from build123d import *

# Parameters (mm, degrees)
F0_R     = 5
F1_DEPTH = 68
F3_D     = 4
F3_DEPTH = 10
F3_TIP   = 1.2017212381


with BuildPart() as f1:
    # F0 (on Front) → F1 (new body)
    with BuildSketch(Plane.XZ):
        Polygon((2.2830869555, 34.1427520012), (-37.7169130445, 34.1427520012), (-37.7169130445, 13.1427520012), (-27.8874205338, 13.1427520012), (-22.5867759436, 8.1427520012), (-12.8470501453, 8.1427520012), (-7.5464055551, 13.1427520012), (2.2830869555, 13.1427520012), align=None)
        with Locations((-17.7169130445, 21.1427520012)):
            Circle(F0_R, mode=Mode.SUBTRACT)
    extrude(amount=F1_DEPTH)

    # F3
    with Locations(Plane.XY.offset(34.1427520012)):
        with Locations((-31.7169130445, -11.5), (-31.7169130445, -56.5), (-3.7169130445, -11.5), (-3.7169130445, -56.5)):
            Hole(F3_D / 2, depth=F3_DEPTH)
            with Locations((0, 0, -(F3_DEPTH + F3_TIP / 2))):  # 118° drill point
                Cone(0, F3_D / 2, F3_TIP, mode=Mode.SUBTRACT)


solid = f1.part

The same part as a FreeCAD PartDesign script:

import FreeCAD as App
import Part
import Sketcher
from FreeCAD import Vector
Q = App.Units.Quantity

doc = App.newDocument("Part")
body = doc.addObject("PartDesign::Body", "Body")

# Sketch on XZ plane
sketch1 = body.newObject("Sketcher::SketchObject", "Sketch")
sketch1.AttachmentSupport = (doc.getObject("XZ_Plane"), [""])
sketch1.MapMode = "FlatFace"
sketch1.addGeometry([
    Part.LineSegment(Vector(2, 34, 0), Vector(-38, 34, 0)),  # 0
    Part.LineSegment(Vector(-38, 34, 0), Vector(-38, 13, 0)),  # 1
    Part.LineSegment(Vector(-38, 13, 0), Vector(-28, 13, 0)),  # 2
    Part.LineSegment(Vector(-28, 13, 0), Vector(-23, 8, 0)),  # 3
    Part.LineSegment(Vector(-23, 8, 0), Vector(-13, 8, 0)),  # 4
    Part.LineSegment(Vector(-13, 8, 0), Vector(-8, 13, 0)),  # 5
    Part.LineSegment(Vector(-8, 13, 0), Vector(2, 13, 0)),  # 6
    Part.LineSegment(Vector(2, 13, 0), Vector(2, 34, 0)),  # 7
    Part.Circle(Vector(-18, 21, 0), Vector(0, 0, 1), 5),  # 8
], False)
sketch1.addConstraint([
    Sketcher.Constraint("Coincident", 0, 2, 1, 1),
    Sketcher.Constraint("Coincident", 1, 2, 2, 1),
    Sketcher.Constraint("Coincident", 2, 2, 3, 1),
    Sketcher.Constraint("Coincident", 3, 2, 4, 1),
    Sketcher.Constraint("Coincident", 4, 2, 5, 1),
    Sketcher.Constraint("Coincident", 5, 2, 6, 1),
    Sketcher.Constraint("Coincident", 6, 2, 7, 1),
    Sketcher.Constraint("Coincident", 7, 2, 0, 1),
    Sketcher.Constraint("Horizontal", 0),
    Sketcher.Constraint("Vertical", 1),
    Sketcher.Constraint("Horizontal", 2),
    Sketcher.Constraint("Horizontal", 4),
    Sketcher.Constraint("Horizontal", 6),
    Sketcher.Constraint("Vertical", 7),
    Sketcher.Constraint("Horizontal", 2, 2, 5, 2),
    Sketcher.Constraint("Equal", 2, 6),
    Sketcher.Constraint("Equal", 3, 5),
    Sketcher.Constraint("Diameter", 8, Q("10 mm")),
    Sketcher.Constraint("DistanceX", 0, 2, 0, 1, Q("40 mm")),
    Sketcher.Constraint("DistanceY", 1, 2, 1, 1, Q("21 mm")),
    Sketcher.Constraint("DistanceX", 0, 2, 8, 3, Q("20 mm")),
    Sketcher.Constraint("DistanceY", 8, 3, 0, 2, Q("13 mm")),
    Sketcher.Constraint("DistanceY", 3, 2, 2, 2, Q("5 mm")),
    Sketcher.Constraint("DistanceX", 2, 1, 2, 2, Q("9.829493 mm")),
    Sketcher.Constraint("DistanceX", 4, 1, 4, 2, Q("9.739726 mm")),
    Sketcher.Constraint("DistanceX", 2, 2, -1, 1, Q("27.887421 mm")),
    Sketcher.Constraint("DistanceY", -1, 1, 8, 3, Q("21.142752 mm")),
])
pad1 = body.newObject("PartDesign::Pad", "Pad")
pad1.Profile = sketch1
pad1.Length = 68

# Sketch on XY plane
sketch2 = body.newObject("Sketcher::SketchObject", "Sketch001")
sketch2.AttachmentSupport = (doc.getObject("XY_Plane"), [""])
sketch2.MapMode = "FlatFace"
sketch2.AttachmentOffset = App.Placement(Vector(0, 0, 34.142752), App.Rotation())
sketch2.addGeometry([
    Part.Circle(Vector(-31.7, -11.5, 0), Vector(0, 0, 1), 2),
    Part.Circle(Vector(-31.7, -56.5, 0), Vector(0, 0, 1), 2),
    Part.Circle(Vector(-3.7, -11.5, 0), Vector(0, 0, 1), 2),
    Part.Circle(Vector(-3.7, -56.5, 0), Vector(0, 0, 1), 2),
], False)
sketch2.addConstraint([
    Sketcher.Constraint("Equal", 0, 1),
    Sketcher.Constraint("Equal", 1, 2),
    Sketcher.Constraint("Equal", 2, 3),
    Sketcher.Constraint("Horizontal", 0, 3, 2, 3),
    Sketcher.Constraint("Horizontal", 1, 3, 3, 3),
    Sketcher.Constraint("Vertical", 0, 3, 1, 3),
    Sketcher.Constraint("Vertical", 2, 3, 3, 3),
    Sketcher.Constraint("Diameter", 0, Q("4 mm")),
    Sketcher.Constraint("DistanceY", 1, 3, 0, 3, Q("45 mm")),
    Sketcher.Constraint("DistanceX", 0, 3, 2, 3, Q("28 mm")),
    Sketcher.Constraint("DistanceY", 0, 3, -1, 1, Q("11.5 mm")),
    Sketcher.Constraint("DistanceX", 0, 3, -1, 1, Q("31.716913 mm")),
])
doc.recompute()
hole = body.newObject("PartDesign::Hole", "Hole")
hole.Profile = sketch2
hole.ThreadType = "None"
hole.Diameter = 4
hole.DepthType = "Dimension"
hole.Depth = 10
hole.DrillPoint = "Angled"
hole.DrillPointAngle = 118

doc.recompute()
